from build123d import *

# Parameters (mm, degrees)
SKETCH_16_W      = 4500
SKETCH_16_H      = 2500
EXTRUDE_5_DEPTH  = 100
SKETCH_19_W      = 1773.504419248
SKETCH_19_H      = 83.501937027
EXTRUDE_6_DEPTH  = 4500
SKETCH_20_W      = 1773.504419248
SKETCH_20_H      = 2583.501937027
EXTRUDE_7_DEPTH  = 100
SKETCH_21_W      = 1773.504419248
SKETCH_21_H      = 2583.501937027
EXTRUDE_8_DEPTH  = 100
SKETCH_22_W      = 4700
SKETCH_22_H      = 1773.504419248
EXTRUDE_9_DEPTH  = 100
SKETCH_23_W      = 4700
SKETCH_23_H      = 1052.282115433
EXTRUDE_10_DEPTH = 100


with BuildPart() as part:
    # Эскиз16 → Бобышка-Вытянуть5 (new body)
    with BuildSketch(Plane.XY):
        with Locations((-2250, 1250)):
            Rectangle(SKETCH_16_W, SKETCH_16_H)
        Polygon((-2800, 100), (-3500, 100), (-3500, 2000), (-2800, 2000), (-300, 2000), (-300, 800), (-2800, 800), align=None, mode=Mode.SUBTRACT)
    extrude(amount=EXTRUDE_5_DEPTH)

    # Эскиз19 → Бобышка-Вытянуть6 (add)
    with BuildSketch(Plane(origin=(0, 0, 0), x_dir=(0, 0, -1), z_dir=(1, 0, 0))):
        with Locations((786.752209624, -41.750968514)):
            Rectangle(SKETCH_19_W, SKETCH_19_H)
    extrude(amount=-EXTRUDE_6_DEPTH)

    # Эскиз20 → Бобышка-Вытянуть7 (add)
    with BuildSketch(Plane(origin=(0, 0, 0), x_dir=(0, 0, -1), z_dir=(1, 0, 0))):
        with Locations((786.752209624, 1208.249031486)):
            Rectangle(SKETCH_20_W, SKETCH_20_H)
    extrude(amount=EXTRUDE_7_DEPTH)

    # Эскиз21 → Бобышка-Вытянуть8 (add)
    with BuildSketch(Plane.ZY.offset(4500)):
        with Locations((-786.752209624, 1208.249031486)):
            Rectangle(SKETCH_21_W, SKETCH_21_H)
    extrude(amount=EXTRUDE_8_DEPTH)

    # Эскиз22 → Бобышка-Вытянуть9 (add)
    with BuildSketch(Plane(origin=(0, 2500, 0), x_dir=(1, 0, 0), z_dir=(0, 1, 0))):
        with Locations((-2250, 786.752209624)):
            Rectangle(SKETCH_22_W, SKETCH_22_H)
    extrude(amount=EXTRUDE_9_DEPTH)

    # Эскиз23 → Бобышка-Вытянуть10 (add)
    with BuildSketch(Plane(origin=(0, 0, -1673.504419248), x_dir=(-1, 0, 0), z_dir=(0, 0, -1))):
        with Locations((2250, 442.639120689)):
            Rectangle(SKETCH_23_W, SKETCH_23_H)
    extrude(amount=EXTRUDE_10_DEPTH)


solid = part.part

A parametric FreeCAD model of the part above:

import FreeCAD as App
import Part
import Sketcher
from FreeCAD import Vector


def add_polygon(sketch, points):
    """Adds a closed chain of lines whose ends are joined by coincident constraints."""
    first, n = sketch.GeometryCount, len(points)
    for a, b in zip(points, points[1:] + points[:1]):
        sketch.addGeometry(Part.LineSegment(App.Vector(*a, 0), App.Vector(*b, 0)), False)
    for i in range(n):
        sketch.addConstraint(Sketcher.Constraint("Coincident", first + i, 2, first + (i + 1) % n, 1))

doc = App.newDocument("Part")
body = doc.addObject("PartDesign::Body", "Body")

# Sketch on XY plane
sketch1 = body.newObject("Sketcher::SketchObject", "Sketch")
sketch1.AttachmentSupport = (doc.getObject("XY_Plane"), [""])
sketch1.MapMode = "FlatFace"
add_polygon(sketch1, [(-4500, 2500), (-4500, 0), (0, 0), (0, 2500)])  # lines 0-3
add_polygon(sketch1, [(-2800, 800), (-2800, 100), (-3500, 100), (-3500, 2000), (-300, 2000), (-300, 800)])  # lines 4-9
sketch1.addConstraint([
    Sketcher.Constraint("Vertical", 0),
    Sketcher.Constraint("Horizontal", 1),
    Sketcher.Constraint("Vertical", 2),
    Sketcher.Constraint("Horizontal", 3),
    Sketcher.Constraint("Vertical", 4),
    Sketcher.Constraint("Horizontal", 5),
    Sketcher.Constraint("Vertical", 6),
    Sketcher.Constraint("Horizontal", 7),
    Sketcher.Constraint("Vertical", 8),
    Sketcher.Constraint("Horizontal", 9),
    Sketcher.Constraint("Coincident", 1, 2, -1, 1),
    Sketcher.Constraint("Equal", 9, 0),
    Sketcher.Constraint("Equal", 5, 4),
    Sketcher.Constraint("DistanceX", 1, 1, 1, 2, 4500.0),
    Sketcher.Constraint("DistanceX", 5, 2, 5, 1, 700.0),
    Sketcher.Constraint("DistanceX", 7, 1, 7, 2, 3200.0),
    Sketcher.Constraint("DistanceY", 6, 1, 6, 2, 1900.0),
    Sketcher.Constraint("DistanceX", 4, 2, -1, 1, 2800.0),
    Sketcher.Constraint("DistanceY", -1, 1, 4, 2, 100.0),
])
pad1 = body.newObject("PartDesign::Pad", "Pad")
pad1.Profile = sketch1
pad1.Length = 100

# Sketch on YZ plane
sketch2 = body.newObject("Sketcher::SketchObject", "Sketch001")
sketch2.AttachmentSupport = (doc.getObject("YZ_Plane"), [""])
sketch2.MapMode = "FlatFace"
add_polygon(sketch2, [(0, 100), (-84, 100), (-84, -1674), (0, -1674)])  # lines 0-3
sketch2.addConstraint([
    Sketcher.Constraint("Horizontal", 0),
    Sketcher.Constraint("Vertical", 1),
    Sketcher.Constraint("Horizontal", 2),
    Sketcher.Constraint("Vertical", 3),
    Sketcher.Constraint("PointOnObject", 2, 2, -2),
    Sketcher.Constraint("DistanceY", -1, 1, 0, 2, 100.0),
    Sketcher.Constraint("DistanceY", 1, 2, 1, 1, 1773.504419),
    Sketcher.Constraint("DistanceX", 0, 2, 0, 1, 83.501937),
])
pad2 = body.newObject("PartDesign::Pad", "Pad001")
pad2.Profile = sketch2
pad2.Length = 4500
pad2.Reversed = True

# Sketch on YZ plane
sketch3 = body.newObject("Sketcher::SketchObject", "Sketch002")
sketch3.AttachmentSupport = (doc.getObject("YZ_Plane"), [""])
sketch3.MapMode = "FlatFace"
add_polygon(sketch3, [(2500, 100), (-84, 100), (-84, -1674), (2500, -1674)])  # lines 0-3
sketch3.addConstraint([
    Sketcher.Constraint("Horizontal", 0),
    Sketcher.Constraint("Vertical", 1),
    Sketcher.Constraint("Horizontal", 2),
    Sketcher.Constraint("Vertical", 3),
    Sketcher.Constraint("DistanceY", -1, 1, 0, 2, 100.0),
    Sketcher.Constraint("DistanceX", -1, 1, 2, 2, 2500.0),
    Sketcher.Constraint("DistanceY", 1, 2, 1, 1, 1773.504419),
    Sketcher.Constraint("DistanceX", 0, 2, 0, 1, 2583.501937),
])
pad3 = body.newObject("PartDesign::Pad", "Pad002")
pad3.Profile = sketch3
pad3.Length = 100

# Sketch on YZ plane
sketch4 = body.newObject("Sketcher::SketchObject", "Sketch003")
sketch4.AttachmentSupport = (doc.getObject("YZ_Plane"), [""])
sketch4.MapMode = "FlatFace"
sketch4.AttachmentOffset = App.Placement(Vector(0, 0, -4500), App.Rotation())
add_polygon(sketch4, [(2500, -1674), (-84, -1674), (-84, 100), (2500, 100)])  # lines 0-3
sketch4.addConstraint([
    Sketcher.Constraint("Horizontal", 0),
    Sketcher.Constraint("Vertical", 1),
    Sketcher.Constraint("Horizontal", 2),
    Sketcher.Constraint("Vertical", 3),
    Sketcher.Constraint("DistanceY", -1, 1, 1, 2, 100.0),
    Sketcher.Constraint("DistanceX", -1, 1, 2, 2, 2500.0),
    Sketcher.Constraint("DistanceY", 1, 1, 1, 2, 1773.504419),
    Sketcher.Constraint("DistanceX", 0, 2, 0, 1, 2583.501937),
])
pad4 = body.newObject("PartDesign::Pad", "Pad003")
pad4.Profile = sketch4
pad4.Length = 100
pad4.Reversed = True

# Sketch on XZ plane
sketch5 = body.newObject("Sketcher::SketchObject", "Sketch004")
sketch5.AttachmentSupport = (doc.getObject("XZ_Plane"), [""])
sketch5.MapMode = "FlatFace"
sketch5.AttachmentOffset = App.Placement(Vector(0, 0, -2500), App.Rotation())
add_polygon(sketch5, [(-4600, -1674), (-4600, 100), (100, 100), (100, -1674)])  # lines 0-3
sketch5.addConstraint([
    Sketcher.Constraint("Vertical", 0),
    Sketcher.Constraint("Horizontal", 1),
    Sketcher.Constraint("Vertical", 2),
    Sketcher.Constraint("Horizontal", 3),
    Sketcher.Constraint("DistanceX", 1, 1, 1, 2, 4700.0),
    Sketcher.Constraint("DistanceX", 0, 2, -1, 1, 4600.0),
    Sketcher.Constraint("DistanceY", -1, 1, 0, 2, 100.0),
    Sketcher.Constraint("DistanceY", 0, 1, 0, 2, 1773.504419),
])
pad5 = body.newObject("PartDesign::Pad", "Pad004")
pad5.Profile = sketch5
pad5.Length = 100
pad5.Reversed = True

# Sketch on XY plane
sketch6 = body.newObject("Sketcher::SketchObject", "Sketch005")
sketch6.AttachmentSupport = (doc.getObject("XY_Plane"), [""])
sketch6.MapMode = "FlatFace"
sketch6.AttachmentOffset = App.Placement(Vector(0, 0, -1673.504419), App.Rotation())
add_polygon(sketch6, [(100, 969), (100, -84), (-4600, -84), (-4600, 969)])  # lines 0-3
sketch6.addConstraint([
    Sketcher.Constraint("Vertical", 0),
    Sketcher.Constraint("Horizontal", 1),
    Sketcher.Constraint("Vertical", 2),
    Sketcher.Constraint("Horizontal", 3),
    Sketcher.Constraint("DistanceX", 1, 2, 1, 1, 4700.0),
    Sketcher.Constraint("DistanceX", -1, 1, 0, 2, 100.0),
    Sketcher.Constraint("DistanceY", 0, 2, 0, 1, 1052.282115),
    Sketcher.Constraint("DistanceY", -1, 1, 2, 2, 968.780178),
])
pad6 = body.newObject("PartDesign::Pad", "Pad005")
pad6.Profile = sketch6
pad6.Length = 100
pad6.Reversed = True

doc.recompute()
